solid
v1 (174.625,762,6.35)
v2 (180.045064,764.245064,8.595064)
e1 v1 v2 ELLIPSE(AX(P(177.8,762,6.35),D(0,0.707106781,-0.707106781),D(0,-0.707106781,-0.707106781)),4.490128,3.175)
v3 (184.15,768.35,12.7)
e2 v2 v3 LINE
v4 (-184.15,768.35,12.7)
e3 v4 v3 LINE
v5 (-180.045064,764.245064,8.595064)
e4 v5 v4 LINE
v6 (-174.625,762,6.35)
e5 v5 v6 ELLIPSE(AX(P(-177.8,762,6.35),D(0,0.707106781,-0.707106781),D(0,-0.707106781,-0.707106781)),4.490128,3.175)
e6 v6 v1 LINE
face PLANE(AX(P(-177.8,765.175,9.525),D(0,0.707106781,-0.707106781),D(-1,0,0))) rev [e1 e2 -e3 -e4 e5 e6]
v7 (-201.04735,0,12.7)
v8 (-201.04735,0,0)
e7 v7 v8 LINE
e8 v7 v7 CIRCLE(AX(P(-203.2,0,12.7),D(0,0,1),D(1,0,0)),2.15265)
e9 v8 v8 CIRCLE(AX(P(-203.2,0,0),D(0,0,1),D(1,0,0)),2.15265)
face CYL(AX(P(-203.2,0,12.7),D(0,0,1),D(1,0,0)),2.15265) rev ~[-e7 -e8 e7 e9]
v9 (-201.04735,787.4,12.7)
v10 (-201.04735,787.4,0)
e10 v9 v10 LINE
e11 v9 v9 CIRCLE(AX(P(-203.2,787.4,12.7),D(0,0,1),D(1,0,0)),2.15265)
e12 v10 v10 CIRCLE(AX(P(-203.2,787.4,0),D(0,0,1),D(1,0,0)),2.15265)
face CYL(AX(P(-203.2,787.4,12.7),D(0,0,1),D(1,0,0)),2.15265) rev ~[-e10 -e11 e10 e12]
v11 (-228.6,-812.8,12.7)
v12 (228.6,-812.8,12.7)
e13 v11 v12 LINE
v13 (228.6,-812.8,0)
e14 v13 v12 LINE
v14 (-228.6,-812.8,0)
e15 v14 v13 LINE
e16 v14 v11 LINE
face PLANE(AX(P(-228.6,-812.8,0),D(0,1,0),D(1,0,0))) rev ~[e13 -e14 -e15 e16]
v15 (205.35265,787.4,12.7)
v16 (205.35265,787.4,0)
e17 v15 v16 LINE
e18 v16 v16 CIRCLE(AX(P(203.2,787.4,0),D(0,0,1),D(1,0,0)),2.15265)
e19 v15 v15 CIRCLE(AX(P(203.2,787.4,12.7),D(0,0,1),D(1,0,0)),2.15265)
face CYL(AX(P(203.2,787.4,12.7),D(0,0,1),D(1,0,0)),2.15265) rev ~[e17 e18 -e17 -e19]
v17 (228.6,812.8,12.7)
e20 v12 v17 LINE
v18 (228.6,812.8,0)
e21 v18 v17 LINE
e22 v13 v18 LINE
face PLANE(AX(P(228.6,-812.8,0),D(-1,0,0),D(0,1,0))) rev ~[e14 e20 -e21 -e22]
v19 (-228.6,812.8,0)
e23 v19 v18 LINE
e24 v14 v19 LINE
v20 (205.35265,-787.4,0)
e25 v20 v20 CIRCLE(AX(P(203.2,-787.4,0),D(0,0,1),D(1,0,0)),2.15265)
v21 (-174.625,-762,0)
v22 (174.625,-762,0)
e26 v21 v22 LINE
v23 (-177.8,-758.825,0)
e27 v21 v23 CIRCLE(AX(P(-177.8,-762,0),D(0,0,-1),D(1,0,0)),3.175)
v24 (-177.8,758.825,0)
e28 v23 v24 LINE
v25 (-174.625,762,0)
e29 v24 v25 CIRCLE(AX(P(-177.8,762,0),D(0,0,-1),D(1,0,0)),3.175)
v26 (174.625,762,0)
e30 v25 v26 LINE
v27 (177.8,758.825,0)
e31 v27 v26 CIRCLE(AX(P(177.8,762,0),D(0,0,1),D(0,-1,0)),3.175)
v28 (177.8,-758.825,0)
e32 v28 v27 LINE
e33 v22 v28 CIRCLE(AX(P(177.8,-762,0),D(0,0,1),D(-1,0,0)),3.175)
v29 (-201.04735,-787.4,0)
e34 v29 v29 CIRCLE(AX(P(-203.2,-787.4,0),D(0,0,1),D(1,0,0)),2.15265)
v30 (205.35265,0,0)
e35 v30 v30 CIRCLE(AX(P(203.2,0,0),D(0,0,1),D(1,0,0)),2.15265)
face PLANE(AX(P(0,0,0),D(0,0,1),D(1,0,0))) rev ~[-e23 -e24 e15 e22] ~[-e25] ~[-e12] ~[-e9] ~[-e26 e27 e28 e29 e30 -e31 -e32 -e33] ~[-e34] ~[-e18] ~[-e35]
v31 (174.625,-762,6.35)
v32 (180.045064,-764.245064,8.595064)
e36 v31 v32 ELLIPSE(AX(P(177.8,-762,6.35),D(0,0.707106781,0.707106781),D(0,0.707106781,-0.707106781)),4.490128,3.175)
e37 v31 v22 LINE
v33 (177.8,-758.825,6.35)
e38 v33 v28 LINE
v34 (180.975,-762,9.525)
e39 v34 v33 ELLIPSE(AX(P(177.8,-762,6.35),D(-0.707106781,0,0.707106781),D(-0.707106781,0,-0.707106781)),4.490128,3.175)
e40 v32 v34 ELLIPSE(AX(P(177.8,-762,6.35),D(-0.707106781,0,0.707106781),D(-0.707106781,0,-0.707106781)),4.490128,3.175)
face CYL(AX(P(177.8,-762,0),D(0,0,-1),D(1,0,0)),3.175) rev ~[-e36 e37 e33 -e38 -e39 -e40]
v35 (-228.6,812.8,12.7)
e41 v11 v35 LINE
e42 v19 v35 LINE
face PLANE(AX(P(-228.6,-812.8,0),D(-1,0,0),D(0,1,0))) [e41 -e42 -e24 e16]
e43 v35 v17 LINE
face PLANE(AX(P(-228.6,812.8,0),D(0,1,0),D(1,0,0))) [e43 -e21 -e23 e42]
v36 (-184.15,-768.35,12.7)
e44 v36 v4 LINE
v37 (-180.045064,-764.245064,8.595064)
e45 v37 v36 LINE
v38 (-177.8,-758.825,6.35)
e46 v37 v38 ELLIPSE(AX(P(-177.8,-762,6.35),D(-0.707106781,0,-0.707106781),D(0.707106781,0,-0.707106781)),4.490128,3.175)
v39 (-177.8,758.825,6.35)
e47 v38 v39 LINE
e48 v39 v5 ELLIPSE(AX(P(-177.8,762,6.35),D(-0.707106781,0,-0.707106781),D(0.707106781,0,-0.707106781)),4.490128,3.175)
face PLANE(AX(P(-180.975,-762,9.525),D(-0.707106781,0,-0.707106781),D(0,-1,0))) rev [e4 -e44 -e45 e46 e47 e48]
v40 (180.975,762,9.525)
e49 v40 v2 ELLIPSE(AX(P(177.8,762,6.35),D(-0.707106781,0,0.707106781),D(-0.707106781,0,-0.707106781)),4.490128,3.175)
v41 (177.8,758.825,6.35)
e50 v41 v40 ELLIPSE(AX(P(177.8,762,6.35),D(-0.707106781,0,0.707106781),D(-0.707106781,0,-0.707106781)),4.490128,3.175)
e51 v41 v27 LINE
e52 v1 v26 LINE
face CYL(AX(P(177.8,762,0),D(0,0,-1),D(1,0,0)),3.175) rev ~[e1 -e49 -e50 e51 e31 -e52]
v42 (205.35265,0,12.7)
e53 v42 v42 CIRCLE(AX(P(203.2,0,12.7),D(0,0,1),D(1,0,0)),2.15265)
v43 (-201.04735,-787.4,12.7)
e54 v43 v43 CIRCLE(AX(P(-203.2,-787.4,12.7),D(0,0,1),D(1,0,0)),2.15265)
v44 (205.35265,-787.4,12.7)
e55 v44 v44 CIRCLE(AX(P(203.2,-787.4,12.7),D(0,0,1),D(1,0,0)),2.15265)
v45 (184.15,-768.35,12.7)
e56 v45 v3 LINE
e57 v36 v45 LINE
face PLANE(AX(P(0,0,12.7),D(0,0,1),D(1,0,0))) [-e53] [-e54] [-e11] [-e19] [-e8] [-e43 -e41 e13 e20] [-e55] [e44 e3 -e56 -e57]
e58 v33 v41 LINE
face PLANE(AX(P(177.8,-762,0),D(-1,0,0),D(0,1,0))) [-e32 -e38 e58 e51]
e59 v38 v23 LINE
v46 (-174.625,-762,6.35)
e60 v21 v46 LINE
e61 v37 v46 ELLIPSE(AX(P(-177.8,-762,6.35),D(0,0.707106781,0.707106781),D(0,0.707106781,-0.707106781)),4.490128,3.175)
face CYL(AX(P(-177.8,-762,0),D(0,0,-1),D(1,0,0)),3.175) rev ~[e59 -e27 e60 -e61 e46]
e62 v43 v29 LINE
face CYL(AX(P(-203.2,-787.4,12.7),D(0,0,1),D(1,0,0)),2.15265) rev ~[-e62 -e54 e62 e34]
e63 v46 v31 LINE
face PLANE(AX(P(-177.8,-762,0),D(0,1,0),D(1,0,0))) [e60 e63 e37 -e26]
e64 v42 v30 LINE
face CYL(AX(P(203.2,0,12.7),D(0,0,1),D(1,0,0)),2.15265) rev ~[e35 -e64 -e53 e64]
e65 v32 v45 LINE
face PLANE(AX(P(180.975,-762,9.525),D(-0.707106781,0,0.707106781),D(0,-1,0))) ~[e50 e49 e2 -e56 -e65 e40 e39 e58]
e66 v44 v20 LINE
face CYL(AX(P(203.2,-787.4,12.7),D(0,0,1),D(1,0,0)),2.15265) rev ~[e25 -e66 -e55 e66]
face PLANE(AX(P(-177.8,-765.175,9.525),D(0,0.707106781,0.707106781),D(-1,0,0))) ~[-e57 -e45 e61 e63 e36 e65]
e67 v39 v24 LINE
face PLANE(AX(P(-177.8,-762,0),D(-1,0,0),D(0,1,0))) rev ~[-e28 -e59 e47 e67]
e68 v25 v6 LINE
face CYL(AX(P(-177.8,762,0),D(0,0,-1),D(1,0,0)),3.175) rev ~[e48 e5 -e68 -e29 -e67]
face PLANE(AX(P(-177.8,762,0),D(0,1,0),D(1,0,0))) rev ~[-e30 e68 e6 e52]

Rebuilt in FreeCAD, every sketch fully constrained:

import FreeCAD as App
import Part
import Sketcher
from FreeCAD import Vector
Q = App.Units.Quantity


def edges_at(feature, points):
    """Names of the edges that pass closest to the given points."""
    edges = feature.Shape.Edges
    near = lambda p: min(range(len(edges)), key=lambda i: edges[i].distToShape(Part.Vertex(*p))[0])
    return sorted({f"Edge{near(p) + 1}" for p in points})


def add_polygon(sketch, points):
    """Adds a closed chain of lines whose ends are joined by coincident constraints."""
    first, n = sketch.GeometryCount, len(points)
    for a, b in zip(points, points[1:] + points[:1]):
        sketch.addGeometry(Part.LineSegment(App.Vector(*a, 0), App.Vector(*b, 0)), False)
    for i in range(n):
        sketch.addConstraint(Sketcher.Constraint("Coincident", first + i, 2, first + (i + 1) % n, 1))

doc = App.newDocument("Part")
body = doc.addObject("PartDesign::Body", "Body")

# Sketch on XY plane
sketch1 = body.newObject("Sketcher::SketchObject", "Sketch")
sketch1.AttachmentSupport = (doc.getObject("XY_Plane"), [""])
sketch1.MapMode = "FlatFace"
add_polygon(sketch1, [(-229, 813), (-229, -813), (229, -813), (229, 813)])  # lines 0-3
add_polygon(sketch1, [(178, -762), (-178, -762), (-178, 762), (178, 762)])  # lines 4-7
sketch1.addConstraint([
    Sketcher.Constraint("Vertical", 0),
    Sketcher.Constraint("Horizontal", 1),
    Sketcher.Constraint("Vertical", 2),
    Sketcher.Constraint("Horizontal", 3),
    Sketcher.Constraint("Horizontal", 4),
    Sketcher.Constraint("Vertical", 5),
    Sketcher.Constraint("Horizontal", 6),
    Sketcher.Constraint("Vertical", 7),
    Sketcher.Constraint("Symmetric", 0, 2, 2, 2, -1, 1),
    Sketcher.Constraint("Symmetric", 4, 2, 6, 2, -1, 1),
    Sketcher.Constraint("DistanceX", 1, 1, 1, 2, Q("18 in")),
    Sketcher.Constraint("DistanceX", 4, 2, 4, 1, Q("14 in")),
    Sketcher.Constraint("DistanceY", 0, 2, 0, 1, Q("64 in")),
    Sketcher.Constraint("DistanceY", 5, 1, 5, 2, Q("60 in")),
])
pad1 = body.newObject("PartDesign::Pad", "Pad")
pad1.Profile = sketch1
pad1.Length = Q("0.5 in")
doc.recompute()

chamfer = body.newObject("PartDesign::Chamfer", "Chamfer")
chamfer.Base = (pad1, edges_at(pad1, [
    (0, 762, 12.7),
    (-177.8, 0, 12.7),
    (177.8, 0, 12.7),
    (0, -762, 12.7),
]))
chamfer.Size = Q("0.25 in")

# Sketch on XY plane
sketch2 = body.newObject("Sketcher::SketchObject", "Sketch001")
sketch2.AttachmentSupport = (doc.getObject("XY_Plane"), [""])
sketch2.MapMode = "FlatFace"
sketch2.addGeometry([
    Part.Circle(Vector(-177.8, 762, 0), Vector(0, 0, 1), 3.2),
    Part.Circle(Vector(177.8, 762, 0), Vector(0, 0, 1), 3.2),
    Part.Circle(Vector(177.8, -762, 0), Vector(0, 0, 1), 3.2),
    Part.Circle(Vector(-177.8, -762, 0), Vector(0, 0, 1), 3.2),
], False)
sketch2.addConstraint([
    Sketcher.Constraint("Equal", 0, 1),
    Sketcher.Constraint("Equal", 1, 2),
    Sketcher.Constraint("Equal", 2, 3),
    Sketcher.Constraint("Symmetric", 0, 3, 2, 3, -1, 1),
    Sketcher.Constraint("Symmetric", 1, 3, 3, 3, -1, 1),
    Sketcher.Constraint("Symmetric", 0, 3, 1, 3, -2),
    Sketcher.Constraint("Diameter", 0, Q("0.25 in")),
    Sketcher.Constraint("DistanceX", 0, 3, -1, 1, Q("7 in")),
    Sketcher.Constraint("DistanceY", -1, 1, 0, 3, Q("30 in")),
])
pocket1 = body.newObject("PartDesign::Pocket", "Pocket")
pocket1.Profile = sketch2
pocket1.Type = "ThroughAll"
pocket1.Reversed = True

# Sketch on XY plane
sketch3 = body.newObject("Sketcher::SketchObject", "Sketch002")
sketch3.AttachmentSupport = (doc.getObject("XY_Plane"), [""])
sketch3.MapMode = "FlatFace"
sketch3.AttachmentOffset = App.Placement(Vector(0, 0, 0.5 * 25.4), App.Rotation())
sketch3.addGeometry([
    Part.Circle(Vector(-203.2, -787.4, 0), Vector(0, 0, 1), 2.2),  # 0
    Part.Circle(Vector(203.2, -787.4, 0), Vector(0, 0, 1), 2.2),  # 1
    Part.Circle(Vector(203.2, 0, 0), Vector(0, 0, 1), 2.2),  # 2
    Part.Circle(Vector(-203.2, 0, 0), Vector(0, 0, 1), 2.2),  # 3
    Part.Circle(Vector(-203.2, 787.4, 0), Vector(0, 0, 1), 2.2),  # 4
    Part.Circle(Vector(203.2, 787.4, 0), Vector(0, 0, 1), 2.2),  # 5
], False)
sketch3.addConstraint([
    Sketcher.Constraint("Equal", 0, 1),
    Sketcher.Constraint("Equal", 1, 2),
    Sketcher.Constraint("Equal", 2, 3),
    Sketcher.Constraint("Equal", 3, 4),
    Sketcher.Constraint("Equal", 4, 5),
    Sketcher.Constraint("Symmetric", 2, 3, 3, 3, -1, 1),
    Sketcher.Constraint("Symmetric", 1, 3, 4, 3, -1, 1),
    Sketcher.Constraint("Symmetric", 0, 3, 5, 3, -1, 1),
    Sketcher.Constraint("Symmetric", 0, 3, 1, 3, -2),
    Sketcher.Constraint("PointOnObject", 2, 3, -1),
    Sketcher.Constraint("Vertical", 1, 3, 2, 3),
    Sketcher.Constraint("DistanceX", 0, 3, -1, 1, Q("8 in")),
    Sketcher.Constraint("DistanceY", 0, 3, -1, 1, Q("31 in")),
    Sketcher.Constraint("Diameter", 0, Q("0.1695 in")),
])
pocket2 = body.newObject("PartDesign::Pocket", "Pocket001")
pocket2.Profile = sketch3
pocket2.Type = "ThroughAll"

doc.recompute()
